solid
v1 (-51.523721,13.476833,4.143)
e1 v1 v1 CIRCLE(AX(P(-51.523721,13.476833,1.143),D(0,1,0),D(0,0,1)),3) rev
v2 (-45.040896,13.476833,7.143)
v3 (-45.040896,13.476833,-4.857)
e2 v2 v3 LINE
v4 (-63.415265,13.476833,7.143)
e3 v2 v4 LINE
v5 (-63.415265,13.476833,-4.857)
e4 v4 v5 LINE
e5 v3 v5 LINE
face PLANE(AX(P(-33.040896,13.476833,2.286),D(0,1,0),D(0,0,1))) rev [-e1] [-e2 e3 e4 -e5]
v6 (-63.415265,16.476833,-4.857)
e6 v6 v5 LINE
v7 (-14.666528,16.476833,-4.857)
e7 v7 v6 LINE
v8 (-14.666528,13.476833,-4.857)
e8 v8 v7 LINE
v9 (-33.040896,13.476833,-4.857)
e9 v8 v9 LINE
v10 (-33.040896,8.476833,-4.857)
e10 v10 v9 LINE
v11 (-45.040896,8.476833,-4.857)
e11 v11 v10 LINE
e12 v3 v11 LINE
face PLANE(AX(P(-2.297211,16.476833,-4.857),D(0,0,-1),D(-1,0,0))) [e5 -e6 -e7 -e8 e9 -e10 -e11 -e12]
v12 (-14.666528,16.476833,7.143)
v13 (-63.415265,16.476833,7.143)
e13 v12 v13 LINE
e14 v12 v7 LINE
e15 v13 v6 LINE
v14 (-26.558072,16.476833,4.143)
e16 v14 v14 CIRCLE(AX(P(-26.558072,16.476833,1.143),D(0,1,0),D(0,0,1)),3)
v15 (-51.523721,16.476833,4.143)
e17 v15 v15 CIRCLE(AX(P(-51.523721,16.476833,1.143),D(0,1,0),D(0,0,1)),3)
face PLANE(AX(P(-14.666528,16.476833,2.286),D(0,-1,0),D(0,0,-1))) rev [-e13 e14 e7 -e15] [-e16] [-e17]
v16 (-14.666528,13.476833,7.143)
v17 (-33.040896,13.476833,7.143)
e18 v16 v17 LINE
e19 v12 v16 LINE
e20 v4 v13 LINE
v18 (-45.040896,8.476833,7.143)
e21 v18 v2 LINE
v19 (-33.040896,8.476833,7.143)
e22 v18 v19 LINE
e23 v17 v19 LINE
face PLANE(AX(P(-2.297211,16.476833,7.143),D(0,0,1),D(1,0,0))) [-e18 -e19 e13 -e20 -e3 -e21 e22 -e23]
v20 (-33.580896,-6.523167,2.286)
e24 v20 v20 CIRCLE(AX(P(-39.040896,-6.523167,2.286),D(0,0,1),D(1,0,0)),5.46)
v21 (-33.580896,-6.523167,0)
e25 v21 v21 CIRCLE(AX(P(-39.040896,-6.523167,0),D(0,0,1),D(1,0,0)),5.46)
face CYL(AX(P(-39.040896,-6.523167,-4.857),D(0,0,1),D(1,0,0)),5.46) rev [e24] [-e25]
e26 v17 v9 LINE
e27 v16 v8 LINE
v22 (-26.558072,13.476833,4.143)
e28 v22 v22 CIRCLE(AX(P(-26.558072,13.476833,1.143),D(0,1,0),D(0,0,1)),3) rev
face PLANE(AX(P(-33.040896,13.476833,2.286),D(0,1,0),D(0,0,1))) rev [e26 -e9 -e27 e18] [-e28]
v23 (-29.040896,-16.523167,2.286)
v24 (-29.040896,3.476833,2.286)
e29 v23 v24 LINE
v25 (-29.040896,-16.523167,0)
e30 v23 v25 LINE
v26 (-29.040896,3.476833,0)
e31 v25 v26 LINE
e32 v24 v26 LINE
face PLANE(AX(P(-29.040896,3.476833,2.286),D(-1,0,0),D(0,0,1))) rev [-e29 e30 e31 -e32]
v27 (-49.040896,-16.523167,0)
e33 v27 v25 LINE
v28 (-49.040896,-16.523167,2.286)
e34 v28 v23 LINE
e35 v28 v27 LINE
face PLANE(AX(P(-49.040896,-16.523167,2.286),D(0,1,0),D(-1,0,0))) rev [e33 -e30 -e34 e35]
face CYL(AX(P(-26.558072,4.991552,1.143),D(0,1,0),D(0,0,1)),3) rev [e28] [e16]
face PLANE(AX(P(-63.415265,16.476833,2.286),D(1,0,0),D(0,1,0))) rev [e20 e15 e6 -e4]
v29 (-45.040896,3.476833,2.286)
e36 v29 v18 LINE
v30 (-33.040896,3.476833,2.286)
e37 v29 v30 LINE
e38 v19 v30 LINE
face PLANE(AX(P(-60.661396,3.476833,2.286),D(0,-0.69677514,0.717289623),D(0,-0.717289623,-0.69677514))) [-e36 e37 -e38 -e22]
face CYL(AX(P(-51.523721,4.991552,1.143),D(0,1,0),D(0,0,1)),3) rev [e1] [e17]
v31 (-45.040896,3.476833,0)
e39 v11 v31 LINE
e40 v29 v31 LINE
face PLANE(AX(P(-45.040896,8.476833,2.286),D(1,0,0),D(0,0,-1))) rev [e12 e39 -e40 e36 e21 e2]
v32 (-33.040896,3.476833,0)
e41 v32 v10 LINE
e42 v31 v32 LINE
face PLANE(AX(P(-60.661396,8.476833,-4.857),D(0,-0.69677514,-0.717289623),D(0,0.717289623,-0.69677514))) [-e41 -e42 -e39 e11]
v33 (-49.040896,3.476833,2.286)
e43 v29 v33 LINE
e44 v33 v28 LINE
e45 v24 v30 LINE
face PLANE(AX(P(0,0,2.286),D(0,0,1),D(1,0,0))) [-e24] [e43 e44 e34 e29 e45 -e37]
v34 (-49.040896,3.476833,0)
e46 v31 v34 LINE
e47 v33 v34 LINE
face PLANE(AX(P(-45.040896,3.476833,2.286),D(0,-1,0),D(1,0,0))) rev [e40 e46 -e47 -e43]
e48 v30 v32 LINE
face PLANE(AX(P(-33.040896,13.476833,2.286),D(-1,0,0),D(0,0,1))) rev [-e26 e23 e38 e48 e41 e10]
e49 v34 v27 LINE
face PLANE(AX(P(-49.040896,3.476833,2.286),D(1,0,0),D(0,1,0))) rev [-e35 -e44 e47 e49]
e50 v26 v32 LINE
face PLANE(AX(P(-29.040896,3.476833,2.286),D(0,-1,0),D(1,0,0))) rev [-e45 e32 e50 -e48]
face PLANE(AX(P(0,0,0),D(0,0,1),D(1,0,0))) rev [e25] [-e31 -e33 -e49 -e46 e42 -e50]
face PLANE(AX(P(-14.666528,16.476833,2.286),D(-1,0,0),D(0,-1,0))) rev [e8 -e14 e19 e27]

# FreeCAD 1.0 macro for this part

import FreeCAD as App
import Part
import Sketcher

V = App.Vector
Q = App.Units.Quantity


def add_polygon(sketch, points):
    """Adds a closed chain of lines whose ends are joined by coincident constraints."""
    first, n = sketch.GeometryCount, len(points)
    for a, b in zip(points, points[1:] + points[:1]):
        sketch.addGeometry(Part.LineSegment(App.Vector(*a, 0), App.Vector(*b, 0)), False)
    for i in range(n):
        sketch.addConstraint(Sketcher.Constraint("Coincident", first + i, 2, first + (i + 1) % n, 1))

doc = App.newDocument("Part")
body = doc.addObject("PartDesign::Body", "Body")

sketch1 = body.newObject("Sketcher::SketchObject", "Sketch")
sketch1.AttachmentSupport = (doc.getObject("XY_Plane"), [""])
sketch1.MapMode = "FlatFace"
add_polygon(sketch1, [(-14.7, 16.5), (-63.4, 16.5), (-63.4, 13.5), (-45, 13.5), (-45, 3.5), (-49, 3.5), (-49, -16.5), (-29, -16.5), (-29, 3.5), (-33, 3.5), (-33, 13.5), (-14.7, 13.5)])
sketch1.addConstraint([
    Sketcher.Constraint("Horizontal", 0),
    Sketcher.Constraint("Vertical", 1),
    Sketcher.Constraint("Horizontal", 2),
    Sketcher.Constraint("Vertical", 3),
    Sketcher.Constraint("Horizontal", 4),
    Sketcher.Constraint("Vertical", 5),
    Sketcher.Constraint("Horizontal", 6),
    Sketcher.Constraint("Vertical", 7),
    Sketcher.Constraint("Horizontal", 8),
    Sketcher.Constraint("Vertical", 9),
    Sketcher.Constraint("Horizontal", 10),
    Sketcher.Constraint("Vertical", 11),
    Sketcher.Constraint("Horizontal", 4, 2, 7, 2),
    Sketcher.Constraint("Horizontal", 2, 2, 9, 2),
    Sketcher.Constraint("Equal", 4, 8),
    Sketcher.Constraint("Equal", 2, 10),
    Sketcher.Constraint("Equal", 6, 5),
    Sketcher.Constraint("DistanceX", 4, 2, 4, 1, Q("4 mm")),
    Sketcher.Constraint("DistanceX", 6, 1, 6, 2, Q("20 mm")),
    Sketcher.Constraint("DistanceY", 1, 2, 1, 1, Q("3 mm")),
    Sketcher.Constraint("DistanceY", 3, 2, 3, 1, Q("10 mm")),
    Sketcher.Constraint("DistanceX", 2, 1, 2, 2, Q("18.374369 mm")),
    Sketcher.Constraint("DistanceX", 0, 2, -1, 1, Q("63.415265 mm")),
    Sketcher.Constraint("DistanceY", -1, 1, 0, 2, Q("16.476833 mm")),
])
pad1 = body.newObject("PartDesign::Pad", "Pad")
pad1.Profile = sketch1
pad1.Length = 2.286

sketch2 = body.newObject("Sketcher::SketchObject", "Sketch001")
sketch2.AttachmentSupport = (doc.getObject("YZ_Plane"), [""])
sketch2.MapMode = "FlatFace"
sketch2.AttachmentOffset = App.Placement(V(0, 0, -63.415265), App.Rotation())
add_polygon(sketch2, [(16.5, -4.9), (13.5, -4.9), (13.5, 7.1), (16.5, 7.1)])
sketch2.addConstraint([
    Sketcher.Constraint("Horizontal", 0),
    Sketcher.Constraint("Vertical", 1),
    Sketcher.Constraint("Horizontal", 2),
    Sketcher.Constraint("Vertical", 3),
    Sketcher.Constraint("DistanceX", 0, 2, 0, 1, Q("3 mm")),
    Sketcher.Constraint("DistanceY", 1, 1, 1, 2, Q("12 mm")),
    Sketcher.Constraint("DistanceY", 0, 2, -1, 1, Q("4.857 mm")),
    Sketcher.Constraint("DistanceX", -1, 1, 0, 2, Q("13.476833 mm")),
])
pad2 = body.newObject("PartDesign::Pad", "Pad001")
pad2.Profile = sketch2
pad2.Length = 48.748737

sketch3 = body.newObject("Sketcher::SketchObject", "Sketch002")
sketch3.AttachmentSupport = (doc.getObject("YZ_Plane"), [""])
sketch3.MapMode = "FlatFace"
sketch3.AttachmentOffset = App.Placement(V(0, 0, -33.040896), App.Rotation())
add_polygon(sketch3, [(3.5, 0), (8.5, -4.9), (13.5, -4.9), (13.5, 7.1), (8.5, 7.1), (3.5, 2.3)])
sketch3.addConstraint([
    Sketcher.Constraint("Horizontal", 1),
    Sketcher.Constraint("Vertical", 2),
    Sketcher.Constraint("Horizontal", 3),
    Sketcher.Constraint("Vertical", 5),
    Sketcher.Constraint("PointOnObject", 5, 2, -1),
    Sketcher.Constraint("Vertical", 0, 2, 3, 2),
    Sketcher.Constraint("Equal", 0, 4),
    Sketcher.Constraint("DistanceX", 1, 1, 1, 2, Q("5 mm")),
    Sketcher.Constraint("DistanceY", 2, 1, 2, 2, Q("12 mm")),
    Sketcher.Constraint("DistanceX", 4, 2, 3, 2, Q("5 mm")),
    Sketcher.Constraint("DistanceY", 5, 2, 5, 1, Q("2.286 mm")),
    Sketcher.Constraint("DistanceX", -1, 1, 0, 2, Q("8.476833 mm")),
])
pad3 = body.newObject("PartDesign::Pad", "Pad002")
pad3.Profile = sketch3
pad3.Length = 12
pad3.Reversed = True

sketch4 = body.newObject("Sketcher::SketchObject", "Sketch003")
sketch4.AttachmentSupport = (doc.getObject("XY_Plane"), [""])
sketch4.MapMode = "FlatFace"
sketch4.AttachmentOffset = App.Placement(V(0, 0, 2.286), App.Rotation())
sketch4.addGeometry(Part.Circle(V(-39, -7, 0), V(0, 0, 1), 5), False)
sketch4.addConstraint([
    Sketcher.Constraint("Diameter", 0, Q("10.92 mm")),
    Sketcher.Constraint("DistanceX", 0, 3, -1, 1, Q("39.040896 mm")),
    Sketcher.Constraint("DistanceY", 0, 3, -1, 1, Q("6.523167 mm")),
])
pocket1 = body.newObject("PartDesign::Pocket", "Pocket")
pocket1.Profile = sketch4
pocket1.Type = "ThroughAll"

sketch5 = body.newObject("Sketcher::SketchObject", "Sketch004")
sketch5.AttachmentSupport = (doc.getObject("XZ_Plane"), [""])
sketch5.MapMode = "FlatFace"
sketch5.AttachmentOffset = App.Placement(V(0, 0, -16.476833), App.Rotation())
sketch5.addGeometry([
    Part.Circle(V(-26.6, 1.1, 0), V(0, 0, 1), 3),
    Part.Circle(V(-51.5, 1.1, 0), V(0, 0, 1), 3),
], False)
sketch5.addConstraint([
    Sketcher.Constraint("Equal", 0, 1),
    Sketcher.Constraint("Horizontal", 0, 3, 1, 3),
    Sketcher.Constraint("Diameter", 0, Q("6 mm")),
    Sketcher.Constraint("DistanceY", -1, 1, 0, 3, Q("1.143 mm")),
    Sketcher.Constraint("DistanceX", 1, 3, -1, 1, Q("51.523721 mm")),
    Sketcher.Constraint("DistanceX", 1, 3, 0, 3, Q("24.965648 mm")),
])
pocket2 = body.newObject("PartDesign::Pocket", "Pocket001")
pocket2.Profile = sketch5
pocket2.Length = 3
pocket2.Reversed = True

doc.recompute()
